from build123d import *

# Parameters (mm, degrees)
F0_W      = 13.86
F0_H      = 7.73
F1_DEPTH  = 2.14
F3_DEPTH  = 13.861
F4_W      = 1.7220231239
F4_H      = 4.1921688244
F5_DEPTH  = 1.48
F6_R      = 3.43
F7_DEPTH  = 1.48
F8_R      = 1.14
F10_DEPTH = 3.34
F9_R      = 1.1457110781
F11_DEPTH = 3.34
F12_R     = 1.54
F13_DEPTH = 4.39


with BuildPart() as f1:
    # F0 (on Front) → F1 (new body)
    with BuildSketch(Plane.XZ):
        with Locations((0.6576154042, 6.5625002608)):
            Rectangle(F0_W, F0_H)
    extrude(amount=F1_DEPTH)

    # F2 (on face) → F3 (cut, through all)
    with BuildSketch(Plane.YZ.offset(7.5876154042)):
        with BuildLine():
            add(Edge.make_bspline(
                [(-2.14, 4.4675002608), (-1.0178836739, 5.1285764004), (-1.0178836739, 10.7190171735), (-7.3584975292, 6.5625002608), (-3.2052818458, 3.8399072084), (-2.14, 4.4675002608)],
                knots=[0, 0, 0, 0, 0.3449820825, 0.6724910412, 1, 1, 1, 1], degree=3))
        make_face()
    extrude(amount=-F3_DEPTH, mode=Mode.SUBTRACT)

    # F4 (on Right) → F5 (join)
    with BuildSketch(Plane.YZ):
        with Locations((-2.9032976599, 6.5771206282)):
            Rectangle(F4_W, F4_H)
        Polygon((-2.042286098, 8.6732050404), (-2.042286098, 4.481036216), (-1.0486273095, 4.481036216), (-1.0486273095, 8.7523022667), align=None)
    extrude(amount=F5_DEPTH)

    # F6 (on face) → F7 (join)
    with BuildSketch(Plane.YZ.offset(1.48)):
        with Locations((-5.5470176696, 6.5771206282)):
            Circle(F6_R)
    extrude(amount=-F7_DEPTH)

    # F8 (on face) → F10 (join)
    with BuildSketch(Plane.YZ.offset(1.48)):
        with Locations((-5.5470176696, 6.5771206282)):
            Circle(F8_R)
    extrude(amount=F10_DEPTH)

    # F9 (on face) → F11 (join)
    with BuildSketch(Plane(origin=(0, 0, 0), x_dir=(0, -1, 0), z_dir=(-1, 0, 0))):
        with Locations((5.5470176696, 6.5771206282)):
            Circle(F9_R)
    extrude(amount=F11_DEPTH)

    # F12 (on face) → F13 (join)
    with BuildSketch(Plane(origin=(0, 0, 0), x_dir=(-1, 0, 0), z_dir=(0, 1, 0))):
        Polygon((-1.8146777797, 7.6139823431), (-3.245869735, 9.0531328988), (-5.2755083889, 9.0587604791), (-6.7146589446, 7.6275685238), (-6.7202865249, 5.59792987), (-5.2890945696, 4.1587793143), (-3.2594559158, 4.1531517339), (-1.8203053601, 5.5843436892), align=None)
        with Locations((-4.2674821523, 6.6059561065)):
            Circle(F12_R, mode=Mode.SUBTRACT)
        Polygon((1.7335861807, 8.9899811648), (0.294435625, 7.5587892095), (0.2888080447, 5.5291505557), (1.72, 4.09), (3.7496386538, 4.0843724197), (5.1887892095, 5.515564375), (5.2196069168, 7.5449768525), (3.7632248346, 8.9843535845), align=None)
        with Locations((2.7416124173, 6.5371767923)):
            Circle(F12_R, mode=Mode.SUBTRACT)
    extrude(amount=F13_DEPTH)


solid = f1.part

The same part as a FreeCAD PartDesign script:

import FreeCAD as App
import Part
import Sketcher
from FreeCAD import Vector
Q = App.Units.Quantity


def add_polygon(sketch, points):
    """Adds a closed chain of lines whose ends are joined by coincident constraints."""
    first, n = sketch.GeometryCount, len(points)
    for a, b in zip(points, points[1:] + points[:1]):
        sketch.addGeometry(Part.LineSegment(App.Vector(*a, 0), App.Vector(*b, 0)), False)
    for i in range(n):
        sketch.addConstraint(Sketcher.Constraint("Coincident", first + i, 2, first + (i + 1) % n, 1))

doc = App.newDocument("Part")
body = doc.addObject("PartDesign::Body", "Body")

sketch1 = body.newObject("Sketcher::SketchObject", "Sketch")
sketch1.AttachmentSupport = (doc.getObject("XZ_Plane"), [""])
sketch1.MapMode = "FlatFace"
add_polygon(sketch1, [(-6.272385, 10.4275), (-6.272385, 2.6975), (7.587615, 2.6975), (7.587615, 10.4275)])
sketch1.addConstraint([
    Sketcher.Constraint("Vertical", 0),
    Sketcher.Constraint("Horizontal", 1),
    Sketcher.Constraint("Vertical", 2),
    Sketcher.Constraint("Horizontal", 3),
    Sketcher.Constraint("DistanceX", 1, 1, 1, 2, 13.86),
    Sketcher.Constraint("DistanceY", 0, 2, 0, 1, 7.73),
    Sketcher.Constraint("DistanceY", -1, 1, 0, 2, 2.6975),
    Sketcher.Constraint("DistanceX", 0, 2, -1, 1, 6.272385),
])
pad1 = body.newObject("PartDesign::Pad", "Pad")
pad1.Profile = sketch1
pad1.Length = 2.14

sketch2 = body.newObject("Sketcher::SketchObject", "Sketch001")
sketch2.AttachmentSupport = (doc.getObject("YZ_Plane"), [""])
sketch2.MapMode = "FlatFace"
sketch2.AttachmentOffset = App.Placement(Vector(0, 0, 7.587615), App.Rotation())
sketch2.addGeometry(Part.BSplineCurve([Vector(-2.14, 4.4675, 0), Vector(-1.017884, 5.128576, 0), Vector(-1.017884, 10.719017, 0), Vector(-7.358498, 6.5625, 0), Vector(-3.205282, 3.839907, 0), Vector(-2.14, 4.4675, 0)], [4, 1, 1, 4], [0, 0.344982083, 0.672491041, 1], False, 3, [1, 1, 1, 1, 1, 1], False), False)
sketch2.addConstraint(Sketcher.Constraint("Block", 0))
pocket1 = body.newObject("PartDesign::Pocket", "Pocket")
pocket1.Profile = sketch2
pocket1.Type = "ThroughAll"

sketch3 = body.newObject("Sketcher::SketchObject", "Sketch002")
sketch3.AttachmentSupport = (doc.getObject("YZ_Plane"), [""])
sketch3.MapMode = "FlatFace"
add_polygon(sketch3, [(-3.764309, 8.673205), (-3.764309, 4.481036), (-1.048627, 4.481036), (-1.048627, 8.752302), (-2.042286, 8.673205)])
sketch3.addConstraint([
    Sketcher.Constraint("Vertical", 0),
    Sketcher.Constraint("Horizontal", 1),
    Sketcher.Constraint("Vertical", 2),
    Sketcher.Constraint("Horizontal", 4),
    Sketcher.Constraint("Distance", 3, 0.996802),
    Sketcher.Constraint("DistanceX", 1, 1, 1, 2, 2.715682),
    Sketcher.Constraint("DistanceY", 0, 2, 0, 1, 4.192169),
    Sketcher.Constraint("DistanceX", 4, 2, 4, 1, 1.722023),
    Sketcher.Constraint("DistanceX", 0, 2, -1, 1, 3.764309),
    Sketcher.Constraint("DistanceY", -1, 1, 0, 2, 4.481036),
])
pad2 = body.newObject("PartDesign::Pad", "Pad001")
pad2.Profile = sketch3
pad2.Length = 1.48

sketch4 = body.newObject("Sketcher::SketchObject", "Sketch003")
sketch4.AttachmentSupport = (doc.getObject("YZ_Plane"), [""])
sketch4.MapMode = "FlatFace"
sketch4.AttachmentOffset = App.Placement(Vector(0, 0, 1.48), App.Rotation())
sketch4.addGeometry(Part.Circle(Vector(-5.547018, 6.577121, 0), Vector(0, 0, 1), 3.43), False)
sketch4.addConstraint([
    Sketcher.Constraint("Diameter", 0, 6.86),
    Sketcher.Constraint("DistanceY", -1, 1, 0, 3, 6.577121),
    Sketcher.Constraint("DistanceX", 0, 3, -1, 1, 5.547018),
])
pad3 = body.newObject("PartDesign::Pad", "Pad002")
pad3.Profile = sketch4
pad3.Length = 1.48
pad3.Reversed = True

sketch5 = body.newObject("Sketcher::SketchObject", "Sketch004")
sketch5.AttachmentSupport = (doc.getObject("YZ_Plane"), [""])
sketch5.MapMode = "FlatFace"
sketch5.AttachmentOffset = App.Placement(Vector(0, 0, 1.48), App.Rotation())
sketch5.addGeometry(Part.Circle(Vector(-5.547018, 6.577121, 0), Vector(0, 0, 1), 1.14), False)
sketch5.addConstraint([
    Sketcher.Constraint("Diameter", 0, 2.28),
    Sketcher.Constraint("DistanceY", -1, 1, 0, 3, 6.577121),
    Sketcher.Constraint("DistanceX", 0, 3, -1, 1, 5.547018),
])
pad4 = body.newObject("PartDesign::Pad", "Pad003")
pad4.Profile = sketch5
pad4.Length = 3.34

sketch6 = body.newObject("Sketcher::SketchObject", "Sketch005")
sketch6.AttachmentSupport = (doc.getObject("YZ_Plane"), [""])
sketch6.MapMode = "FlatFace"
sketch6.addGeometry(Part.Circle(Vector(-5.547018, 6.577121, 0), Vector(0, 0, 1), 1.145711), False)
sketch6.addConstraint([
    Sketcher.Constraint("Diameter", 0, 2.291422),
    Sketcher.Constraint("DistanceY", -1, 1, 0, 3, 6.577121),
    Sketcher.Constraint("DistanceX", 0, 3, -1, 1, 5.547018),
])
pad5 = body.newObject("PartDesign::Pad", "Pad004")
pad5.Profile = sketch6
pad5.Length = 3.34
pad5.Reversed = True

sketch7 = body.newObject("Sketcher::SketchObject", "Sketch006")
sketch7.AttachmentSupport = (doc.getObject("XZ_Plane"), [""])
sketch7.MapMode = "FlatFace"
add_polygon(sketch7, [(1.814678, 7.613982), (3.24587, 9.053133), (5.275508, 9.05876), (6.714659, 7.627569), (6.720287, 5.59793), (5.289095, 4.158779), (3.259456, 4.153152), (1.820305, 5.584344)])
sketch7.addGeometry(Part.Circle(Vector(4.267482, 6.605956, 0), Vector(0, 0, 1), 1.54), False)
add_polygon(sketch7, [(-1.733586, 8.989981), (-0.294436, 7.558789), (-0.288808, 5.529151), (-1.72, 4.09), (-3.749639, 4.084372), (-5.188789, 5.515564), (-5.219607, 7.544977), (-3.763225, 8.984354)])
sketch7.addGeometry(Part.Circle(Vector(-2.741612, 6.537177, 0), Vector(0, 0, 1), 1.54), False)
sketch7.addConstraint([
    Sketcher.Constraint("Equal", 8, 17),
    Sketcher.Constraint("Perpendicular", 0, 2),
    Sketcher.Constraint("Perpendicular", 1, 3),
    Sketcher.Constraint("Perpendicular", 2, 4),
    Sketcher.Constraint("Perpendicular", 3, 5),
    Sketcher.Constraint("Perpendicular", 4, 6),
    Sketcher.Constraint("Perpendicular", 5, 7),
    Sketcher.Constraint("Parallel", 6, 9),
    Sketcher.Constraint("Parallel", 7, 10),
    Sketcher.Constraint("Perpendicular", 9, 11),
    Sketcher.Constraint("Perpendicular", 10, 12),
    Sketcher.Constraint("Perpendicular", 11, 13),
    Sketcher.Constraint("Parallel", 12, 16),
    Sketcher.Constraint("Equal", 0, 1),
    Sketcher.Constraint("Equal", 1, 2),
    Sketcher.Constraint("Equal", 2, 3),
    Sketcher.Constraint("Equal", 3, 4),
    Sketcher.Constraint("Equal", 4, 5),
    Sketcher.Constraint("Equal", 7, 9),
    Sketcher.Constraint("Equal", 9, 10),
    Sketcher.Constraint("Equal", 10, 11),
    Sketcher.Constraint("Equal", 11, 12),
    Sketcher.Constraint("Equal", 12, 13),
    Sketcher.Constraint("Equal", 13, 14),
    Sketcher.Constraint("Equal", 14, 16),
    Sketcher.Constraint("Diameter", 8, 3.08),
    Sketcher.Constraint("Angle", 14, Q("90.87 deg")),
    Sketcher.Constraint("DistanceX", 11, 2, -1, 1, 1.72),
    Sketcher.Constraint("DistanceY", -1, 1, 11, 2, 4.09),
    Sketcher.Constraint("DistanceY", 5, 2, 10, 2, 1.375999),
    Sketcher.Constraint("DistanceX", 17, 3, 3, 2, 9.461899),
    Sketcher.Constraint("DistanceY", 17, 3, 14, 2, 1.0078),
    Sketcher.Constraint("DistanceX", -1, 1, 0, 2, 3.24587),
    Sketcher.Constraint("DistanceX", -1, 1, 1, 2, 5.275508),
    Sketcher.Constraint("DistanceY", -1, 1, 1, 2, 9.05876),
    Sketcher.Constraint("DistanceX", -1, 1, 2, 2, 6.714659),
    Sketcher.Constraint("DistanceY", 17, 3, 8, 3, 0.068779),
    Sketcher.Constraint("DistanceX", -1, 1, 8, 3, 4.267482),
])
pad6 = body.newObject("PartDesign::Pad", "Pad005")
pad6.Profile = sketch7
pad6.Length = 4.39
pad6.Reversed = True

doc.recompute()
